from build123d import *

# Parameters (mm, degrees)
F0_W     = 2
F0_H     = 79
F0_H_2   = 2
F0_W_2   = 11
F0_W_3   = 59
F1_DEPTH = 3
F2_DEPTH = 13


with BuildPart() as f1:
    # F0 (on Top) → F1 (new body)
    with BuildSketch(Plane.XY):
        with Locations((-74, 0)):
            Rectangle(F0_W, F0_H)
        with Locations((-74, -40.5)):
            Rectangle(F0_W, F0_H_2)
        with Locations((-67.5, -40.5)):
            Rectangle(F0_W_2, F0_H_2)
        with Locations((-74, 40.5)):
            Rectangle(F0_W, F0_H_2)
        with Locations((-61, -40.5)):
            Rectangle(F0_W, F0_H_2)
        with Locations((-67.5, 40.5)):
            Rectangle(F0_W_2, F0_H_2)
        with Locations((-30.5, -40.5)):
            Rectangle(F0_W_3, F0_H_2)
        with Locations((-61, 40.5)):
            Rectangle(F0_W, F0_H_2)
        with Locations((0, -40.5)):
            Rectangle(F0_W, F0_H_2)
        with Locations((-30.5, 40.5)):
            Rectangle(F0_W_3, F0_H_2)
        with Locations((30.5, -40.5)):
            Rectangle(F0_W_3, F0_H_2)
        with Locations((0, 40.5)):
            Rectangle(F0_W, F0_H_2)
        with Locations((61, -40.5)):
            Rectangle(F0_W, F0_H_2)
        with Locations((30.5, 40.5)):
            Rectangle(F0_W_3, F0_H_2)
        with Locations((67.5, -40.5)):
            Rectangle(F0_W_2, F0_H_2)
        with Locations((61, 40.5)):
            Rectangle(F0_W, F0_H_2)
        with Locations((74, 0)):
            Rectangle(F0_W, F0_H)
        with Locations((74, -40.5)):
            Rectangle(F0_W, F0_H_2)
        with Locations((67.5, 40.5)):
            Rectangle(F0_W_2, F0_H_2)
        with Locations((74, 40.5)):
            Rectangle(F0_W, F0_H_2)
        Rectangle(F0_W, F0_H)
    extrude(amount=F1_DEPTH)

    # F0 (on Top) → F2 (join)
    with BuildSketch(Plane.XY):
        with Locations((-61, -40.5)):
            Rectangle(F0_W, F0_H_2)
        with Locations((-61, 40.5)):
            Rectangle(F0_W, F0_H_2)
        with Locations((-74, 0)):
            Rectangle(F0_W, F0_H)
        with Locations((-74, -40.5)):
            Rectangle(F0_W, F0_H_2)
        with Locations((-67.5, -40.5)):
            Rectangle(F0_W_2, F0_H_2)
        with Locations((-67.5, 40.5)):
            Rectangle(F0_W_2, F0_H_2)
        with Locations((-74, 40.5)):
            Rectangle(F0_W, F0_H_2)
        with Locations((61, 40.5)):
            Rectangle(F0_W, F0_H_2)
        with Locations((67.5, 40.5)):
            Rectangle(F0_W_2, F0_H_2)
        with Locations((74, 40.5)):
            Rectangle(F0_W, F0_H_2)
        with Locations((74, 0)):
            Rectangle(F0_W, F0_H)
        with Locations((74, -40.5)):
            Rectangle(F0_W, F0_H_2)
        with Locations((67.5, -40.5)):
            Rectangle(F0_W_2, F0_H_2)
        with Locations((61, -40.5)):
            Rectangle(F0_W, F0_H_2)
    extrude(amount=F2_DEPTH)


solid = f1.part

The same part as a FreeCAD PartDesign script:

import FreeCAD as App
import Part
import Sketcher
from FreeCAD import Vector
Q = App.Units.Quantity


def add_polygon(sketch, points):
    """Adds a closed chain of lines whose ends are joined by coincident constraints."""
    first, n = sketch.GeometryCount, len(points)
    for a, b in zip(points, points[1:] + points[:1]):
        sketch.addGeometry(Part.LineSegment(App.Vector(*a, 0), App.Vector(*b, 0)), False)
    for i in range(n):
        sketch.addConstraint(Sketcher.Constraint("Coincident", first + i, 2, first + (i + 1) % n, 1))

doc = App.newDocument("Part")
body = doc.addObject("PartDesign::Body", "Body")

# Sketch on XY plane
sketch1 = body.newObject("Sketcher::SketchObject", "Sketch")
sketch1.AttachmentSupport = (doc.getObject("XY_Plane"), [""])
sketch1.MapMode = "FlatFace"
add_polygon(sketch1, [(75, -42), (75, 42), (-75, 42), (-75, -42)])  # lines 0-3
add_polygon(sketch1, [(73, 40), (73, -40), (1, -40), (1, 40)])  # lines 4-7
add_polygon(sketch1, [(-1, -40), (-73, -40), (-73, 40), (-1, 40)])  # lines 8-11
sketch1.addConstraint(Sketcher.Constraint("Vertical", 0))
sketch1.addConstraint(Sketcher.Constraint("Horizontal", 1))
sketch1.addConstraint(Sketcher.Constraint("Vertical", 2))
sketch1.addConstraint(Sketcher.Constraint("Horizontal", 3))
sketch1.addConstraint(Sketcher.Constraint("Vertical", 4))
sketch1.addConstraint(Sketcher.Constraint("Horizontal", 5))
sketch1.addConstraint(Sketcher.Constraint("Vertical", 6))
sketch1.addConstraint(Sketcher.Constraint("Horizontal", 7))
sketch1.addConstraint(Sketcher.Constraint("Horizontal", 8))
sketch1.addConstraint(Sketcher.Constraint("Vertical", 9))
sketch1.addConstraint(Sketcher.Constraint("Horizontal", 10))
sketch1.addConstraint(Sketcher.Constraint("Vertical", 11))
sketch1.addConstraint(Sketcher.Constraint("Symmetric", 0, 2, 2, 2, -1, 1))
sketch1.addConstraint(Sketcher.Constraint("Symmetric", 7, 2, 8, 2, -1, 1))
sketch1.addConstraint(Sketcher.Constraint("Symmetric", 5, 2, 10, 2, -1, 1))
sketch1.addConstraint(Sketcher.Constraint("Horizontal", 5, 2, 8, 2))
sketch1.addConstraint(Sketcher.Constraint("DistanceX", 1, 2, 1, 1, Q("150 mm")))
sketch1.addConstraint(Sketcher.Constraint("DistanceX", 5, 2, 5, 1, Q("72 mm")))
sketch1.addConstraint(Sketcher.Constraint("DistanceY", 0, 1, 0, 2, Q("83 mm")))
sketch1.addConstraint(Sketcher.Constraint("DistanceY", 4, 2, 4, 1, Q("79 mm")))
sketch1.addConstraint(Sketcher.Constraint("DistanceX", -1, 1, 4, 2, Q("73 mm")))
pad1 = body.newObject("PartDesign::Pad", "Pad")
pad1.Profile = sketch1
pad1.Length = 3

# Sketch on XY plane
sketch2 = body.newObject("Sketcher::SketchObject", "Sketch001")
sketch2.AttachmentSupport = (doc.getObject("XY_Plane"), [""])
sketch2.MapMode = "FlatFace"
add_polygon(sketch2, [(-60, -41.5), (-60, -39.5), (-73, -39.5), (-73, 39.5), (-60, 39.5), (-60, 41.5), (-75, 41.5), (-75, -41.5)])  # lines 0-7
add_polygon(sketch2, [(60, 41.5), (60, 39.5), (73, 39.5), (73, -39.5), (60, -39.5), (60, -41.5), (75, -41.5), (75, 41.5)])  # lines 8-15
sketch2.addConstraint(Sketcher.Constraint("Vertical", 0))
sketch2.addConstraint(Sketcher.Constraint("Horizontal", 1))
sketch2.addConstraint(Sketcher.Constraint("Vertical", 2))
sketch2.addConstraint(Sketcher.Constraint("Horizontal", 3))
sketch2.addConstraint(Sketcher.Constraint("Vertical", 4))
sketch2.addConstraint(Sketcher.Constraint("Horizontal", 5))
sketch2.addConstraint(Sketcher.Constraint("Vertical", 6))
sketch2.addConstraint(Sketcher.Constraint("Horizontal", 7))
sketch2.addConstraint(Sketcher.Constraint("Vertical", 8))
sketch2.addConstraint(Sketcher.Constraint("Horizontal", 9))
sketch2.addConstraint(Sketcher.Constraint("Vertical", 10))
sketch2.addConstraint(Sketcher.Constraint("Horizontal", 11))
sketch2.addConstraint(Sketcher.Constraint("Vertical", 12))
sketch2.addConstraint(Sketcher.Constraint("Horizontal", 13))
sketch2.addConstraint(Sketcher.Constraint("Vertical", 14))
sketch2.addConstraint(Sketcher.Constraint("Horizontal", 15))
sketch2.addConstraint(Sketcher.Constraint("Symmetric", 0, 2, 8, 2, -1, 1))
sketch2.addConstraint(Sketcher.Constraint("Symmetric", 2, 2, 10, 2, -1, 1))
sketch2.addConstraint(Sketcher.Constraint("Symmetric", 4, 2, 12, 2, -1, 1))
sketch2.addConstraint(Sketcher.Constraint("Symmetric", 6, 2, 14, 2, -1, 1))
sketch2.addConstraint(Sketcher.Constraint("Symmetric", 3, 2, 8, 2, -2))
sketch2.addConstraint(Sketcher.Constraint("Horizontal", 7, 2, 12, 2))
sketch2.addConstraint(Sketcher.Constraint("DistanceX", 1, 2, 1, 1, Q("13 mm")))
sketch2.addConstraint(Sketcher.Constraint("DistanceX", 5, 2, 5, 1, Q("15 mm")))
sketch2.addConstraint(Sketcher.Constraint("DistanceY", 0, 1, 0, 2, Q("2 mm")))
sketch2.addConstraint(Sketcher.Constraint("DistanceY", 2, 1, 2, 2, Q("79 mm")))
sketch2.addConstraint(Sketcher.Constraint("DistanceX", 0, 2, -1, 1, Q("60 mm")))
pad2 = body.newObject("PartDesign::Pad", "Pad001")
pad2.Profile = sketch2
pad2.Length = 13

doc.recompute()
